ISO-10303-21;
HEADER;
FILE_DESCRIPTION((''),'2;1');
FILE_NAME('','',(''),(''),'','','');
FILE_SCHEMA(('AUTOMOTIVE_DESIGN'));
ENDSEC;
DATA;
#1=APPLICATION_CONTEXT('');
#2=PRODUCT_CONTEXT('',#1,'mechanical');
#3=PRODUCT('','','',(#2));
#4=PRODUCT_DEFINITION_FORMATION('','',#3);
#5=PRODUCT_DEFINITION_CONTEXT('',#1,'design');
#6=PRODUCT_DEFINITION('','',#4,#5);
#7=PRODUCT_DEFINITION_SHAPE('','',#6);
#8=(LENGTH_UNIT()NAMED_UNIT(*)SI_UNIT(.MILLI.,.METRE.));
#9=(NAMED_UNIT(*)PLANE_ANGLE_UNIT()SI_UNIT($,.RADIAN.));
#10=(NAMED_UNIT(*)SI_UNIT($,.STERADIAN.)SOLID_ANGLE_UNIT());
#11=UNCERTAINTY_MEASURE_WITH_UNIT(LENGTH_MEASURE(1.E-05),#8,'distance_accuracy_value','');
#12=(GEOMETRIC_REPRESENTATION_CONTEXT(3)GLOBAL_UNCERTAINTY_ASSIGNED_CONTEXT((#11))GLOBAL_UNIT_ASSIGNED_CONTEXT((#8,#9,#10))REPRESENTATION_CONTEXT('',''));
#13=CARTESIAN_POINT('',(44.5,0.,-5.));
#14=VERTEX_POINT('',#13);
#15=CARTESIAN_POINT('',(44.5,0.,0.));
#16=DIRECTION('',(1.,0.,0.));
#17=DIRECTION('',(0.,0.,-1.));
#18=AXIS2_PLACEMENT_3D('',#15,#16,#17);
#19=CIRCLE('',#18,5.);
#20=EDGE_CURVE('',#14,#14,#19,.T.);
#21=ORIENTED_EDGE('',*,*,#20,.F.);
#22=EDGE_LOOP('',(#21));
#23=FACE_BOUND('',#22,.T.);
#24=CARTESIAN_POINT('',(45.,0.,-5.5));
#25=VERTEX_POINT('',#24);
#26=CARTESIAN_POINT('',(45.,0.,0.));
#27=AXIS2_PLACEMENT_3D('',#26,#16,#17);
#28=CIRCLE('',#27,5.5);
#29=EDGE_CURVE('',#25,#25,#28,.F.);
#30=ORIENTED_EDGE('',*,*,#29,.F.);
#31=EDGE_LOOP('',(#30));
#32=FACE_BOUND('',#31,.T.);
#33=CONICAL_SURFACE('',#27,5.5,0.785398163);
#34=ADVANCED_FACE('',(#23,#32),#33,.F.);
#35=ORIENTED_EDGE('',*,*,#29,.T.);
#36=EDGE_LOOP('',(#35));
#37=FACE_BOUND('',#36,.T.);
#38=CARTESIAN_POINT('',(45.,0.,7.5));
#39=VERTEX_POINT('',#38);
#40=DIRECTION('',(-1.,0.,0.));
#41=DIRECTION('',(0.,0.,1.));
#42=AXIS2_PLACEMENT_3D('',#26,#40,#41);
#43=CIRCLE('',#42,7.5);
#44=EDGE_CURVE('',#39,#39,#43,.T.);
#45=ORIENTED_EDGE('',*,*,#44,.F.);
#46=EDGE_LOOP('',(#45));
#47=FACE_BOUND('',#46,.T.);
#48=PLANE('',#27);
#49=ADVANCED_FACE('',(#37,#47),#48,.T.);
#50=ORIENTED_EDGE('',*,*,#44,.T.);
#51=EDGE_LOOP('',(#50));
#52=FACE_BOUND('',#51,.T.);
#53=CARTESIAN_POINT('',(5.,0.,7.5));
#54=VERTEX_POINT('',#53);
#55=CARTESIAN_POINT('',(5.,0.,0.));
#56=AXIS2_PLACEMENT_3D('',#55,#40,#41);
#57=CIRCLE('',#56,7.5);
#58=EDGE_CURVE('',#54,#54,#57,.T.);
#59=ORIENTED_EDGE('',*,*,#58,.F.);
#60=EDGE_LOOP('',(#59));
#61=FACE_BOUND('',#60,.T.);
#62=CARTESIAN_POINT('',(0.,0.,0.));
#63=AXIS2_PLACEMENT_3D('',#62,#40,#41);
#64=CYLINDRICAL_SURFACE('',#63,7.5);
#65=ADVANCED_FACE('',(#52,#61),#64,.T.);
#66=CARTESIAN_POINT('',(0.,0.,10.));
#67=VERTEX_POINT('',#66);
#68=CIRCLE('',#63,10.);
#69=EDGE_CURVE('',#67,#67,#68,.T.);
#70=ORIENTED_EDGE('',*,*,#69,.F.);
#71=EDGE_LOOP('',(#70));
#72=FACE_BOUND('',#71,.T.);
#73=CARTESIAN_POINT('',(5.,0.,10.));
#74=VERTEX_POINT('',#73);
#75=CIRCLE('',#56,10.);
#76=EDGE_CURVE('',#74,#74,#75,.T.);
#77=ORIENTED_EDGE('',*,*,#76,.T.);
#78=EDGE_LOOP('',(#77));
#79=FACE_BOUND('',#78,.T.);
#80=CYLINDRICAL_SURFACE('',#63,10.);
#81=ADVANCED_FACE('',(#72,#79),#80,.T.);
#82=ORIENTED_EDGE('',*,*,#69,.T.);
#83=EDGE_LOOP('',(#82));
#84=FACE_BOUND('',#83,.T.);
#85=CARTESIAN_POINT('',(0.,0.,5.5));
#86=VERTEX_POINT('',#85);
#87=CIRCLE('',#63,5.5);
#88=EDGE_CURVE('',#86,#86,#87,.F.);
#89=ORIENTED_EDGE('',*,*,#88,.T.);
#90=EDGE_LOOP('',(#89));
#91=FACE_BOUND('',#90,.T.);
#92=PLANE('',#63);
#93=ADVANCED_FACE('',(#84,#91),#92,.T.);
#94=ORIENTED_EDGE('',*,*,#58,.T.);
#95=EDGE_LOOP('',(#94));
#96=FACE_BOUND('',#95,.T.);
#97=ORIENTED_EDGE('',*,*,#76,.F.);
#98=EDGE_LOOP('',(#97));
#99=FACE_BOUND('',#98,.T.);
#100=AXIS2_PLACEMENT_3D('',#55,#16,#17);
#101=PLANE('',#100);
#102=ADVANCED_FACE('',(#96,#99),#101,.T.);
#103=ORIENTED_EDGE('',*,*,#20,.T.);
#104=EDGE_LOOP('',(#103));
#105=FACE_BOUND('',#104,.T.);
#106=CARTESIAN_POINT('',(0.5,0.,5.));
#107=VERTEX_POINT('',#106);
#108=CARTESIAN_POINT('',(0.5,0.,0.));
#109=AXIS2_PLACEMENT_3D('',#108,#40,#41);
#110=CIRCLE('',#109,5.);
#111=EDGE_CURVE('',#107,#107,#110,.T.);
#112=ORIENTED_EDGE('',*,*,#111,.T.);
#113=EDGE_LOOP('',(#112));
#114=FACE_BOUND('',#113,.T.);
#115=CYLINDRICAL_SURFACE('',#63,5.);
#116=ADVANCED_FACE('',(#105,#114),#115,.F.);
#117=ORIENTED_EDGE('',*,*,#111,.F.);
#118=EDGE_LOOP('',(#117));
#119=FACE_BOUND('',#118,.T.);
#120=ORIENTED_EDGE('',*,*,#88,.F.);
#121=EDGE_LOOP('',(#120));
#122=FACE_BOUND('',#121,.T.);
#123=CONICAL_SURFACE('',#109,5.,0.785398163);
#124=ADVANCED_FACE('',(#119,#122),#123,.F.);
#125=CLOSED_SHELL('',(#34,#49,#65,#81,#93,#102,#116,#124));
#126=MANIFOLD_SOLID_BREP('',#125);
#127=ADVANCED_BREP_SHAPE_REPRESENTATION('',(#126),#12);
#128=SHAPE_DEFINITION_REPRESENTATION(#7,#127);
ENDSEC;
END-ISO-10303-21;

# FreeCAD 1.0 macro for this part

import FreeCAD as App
import Part
import Sketcher

V = App.Vector
Q = App.Units.Quantity


def edges_at(feature, points):
    """Names of the edges that pass closest to the given points."""
    edges = feature.Shape.Edges
    near = lambda p: min(range(len(edges)), key=lambda i: edges[i].distToShape(Part.Vertex(*p))[0])
    return sorted({f"Edge{near(p) + 1}" for p in points})


def add_polygon(sketch, points):
    """Adds a closed chain of lines whose ends are joined by coincident constraints."""
    first, n = sketch.GeometryCount, len(points)
    for a, b in zip(points, points[1:] + points[:1]):
        sketch.addGeometry(Part.LineSegment(App.Vector(*a, 0), App.Vector(*b, 0)), False)
    for i in range(n):
        sketch.addConstraint(Sketcher.Constraint("Coincident", first + i, 2, first + (i + 1) % n, 1))

doc = App.newDocument("Part")
body = doc.addObject("PartDesign::Body", "Body")

# Sketch on XY plane
sketch1 = body.newObject("Sketcher::SketchObject", "Sketch")
sketch1.AttachmentSupport = (doc.getObject("XY_Plane"), [""])
sketch1.MapMode = "FlatFace"
add_polygon(sketch1, [(0, 10), (0, 5), (45, 5), (45, 7.5), (5, 7.5), (5, 10)])  # lines 0-5
sketch1.addConstraint([
    Sketcher.Constraint("Vertical", 0),
    Sketcher.Constraint("Horizontal", 1),
    Sketcher.Constraint("Vertical", 2),
    Sketcher.Constraint("Horizontal", 3),
    Sketcher.Constraint("Vertical", 4),
    Sketcher.Constraint("Horizontal", 5),
    Sketcher.Constraint("PointOnObject", 0, 2, -2),
    Sketcher.Constraint("Equal", 5, 0),
    Sketcher.Constraint("Equal", 2, 4),
    Sketcher.Constraint("DistanceX", 1, 1, 1, 2, Q("45 mm")),
    Sketcher.Constraint("DistanceX", 3, 2, 3, 1, Q("40 mm")),
    Sketcher.Constraint("DistanceY", -1, 1, 0, 2, Q("5 mm")),
])
revolution = body.newObject("PartDesign::Revolution", "Revolution")
revolution.Profile = sketch1
revolution.ReferenceAxis = (sketch1, ["H_Axis"])
revolution.Angle = 360
doc.recompute()

chamfer = body.newObject("PartDesign::Chamfer", "Chamfer")
chamfer.Base = (revolution, edges_at(revolution, [(45, 0, -5), (0, 0, -5)]))
chamfer.Size = 0.5

doc.recompute()
